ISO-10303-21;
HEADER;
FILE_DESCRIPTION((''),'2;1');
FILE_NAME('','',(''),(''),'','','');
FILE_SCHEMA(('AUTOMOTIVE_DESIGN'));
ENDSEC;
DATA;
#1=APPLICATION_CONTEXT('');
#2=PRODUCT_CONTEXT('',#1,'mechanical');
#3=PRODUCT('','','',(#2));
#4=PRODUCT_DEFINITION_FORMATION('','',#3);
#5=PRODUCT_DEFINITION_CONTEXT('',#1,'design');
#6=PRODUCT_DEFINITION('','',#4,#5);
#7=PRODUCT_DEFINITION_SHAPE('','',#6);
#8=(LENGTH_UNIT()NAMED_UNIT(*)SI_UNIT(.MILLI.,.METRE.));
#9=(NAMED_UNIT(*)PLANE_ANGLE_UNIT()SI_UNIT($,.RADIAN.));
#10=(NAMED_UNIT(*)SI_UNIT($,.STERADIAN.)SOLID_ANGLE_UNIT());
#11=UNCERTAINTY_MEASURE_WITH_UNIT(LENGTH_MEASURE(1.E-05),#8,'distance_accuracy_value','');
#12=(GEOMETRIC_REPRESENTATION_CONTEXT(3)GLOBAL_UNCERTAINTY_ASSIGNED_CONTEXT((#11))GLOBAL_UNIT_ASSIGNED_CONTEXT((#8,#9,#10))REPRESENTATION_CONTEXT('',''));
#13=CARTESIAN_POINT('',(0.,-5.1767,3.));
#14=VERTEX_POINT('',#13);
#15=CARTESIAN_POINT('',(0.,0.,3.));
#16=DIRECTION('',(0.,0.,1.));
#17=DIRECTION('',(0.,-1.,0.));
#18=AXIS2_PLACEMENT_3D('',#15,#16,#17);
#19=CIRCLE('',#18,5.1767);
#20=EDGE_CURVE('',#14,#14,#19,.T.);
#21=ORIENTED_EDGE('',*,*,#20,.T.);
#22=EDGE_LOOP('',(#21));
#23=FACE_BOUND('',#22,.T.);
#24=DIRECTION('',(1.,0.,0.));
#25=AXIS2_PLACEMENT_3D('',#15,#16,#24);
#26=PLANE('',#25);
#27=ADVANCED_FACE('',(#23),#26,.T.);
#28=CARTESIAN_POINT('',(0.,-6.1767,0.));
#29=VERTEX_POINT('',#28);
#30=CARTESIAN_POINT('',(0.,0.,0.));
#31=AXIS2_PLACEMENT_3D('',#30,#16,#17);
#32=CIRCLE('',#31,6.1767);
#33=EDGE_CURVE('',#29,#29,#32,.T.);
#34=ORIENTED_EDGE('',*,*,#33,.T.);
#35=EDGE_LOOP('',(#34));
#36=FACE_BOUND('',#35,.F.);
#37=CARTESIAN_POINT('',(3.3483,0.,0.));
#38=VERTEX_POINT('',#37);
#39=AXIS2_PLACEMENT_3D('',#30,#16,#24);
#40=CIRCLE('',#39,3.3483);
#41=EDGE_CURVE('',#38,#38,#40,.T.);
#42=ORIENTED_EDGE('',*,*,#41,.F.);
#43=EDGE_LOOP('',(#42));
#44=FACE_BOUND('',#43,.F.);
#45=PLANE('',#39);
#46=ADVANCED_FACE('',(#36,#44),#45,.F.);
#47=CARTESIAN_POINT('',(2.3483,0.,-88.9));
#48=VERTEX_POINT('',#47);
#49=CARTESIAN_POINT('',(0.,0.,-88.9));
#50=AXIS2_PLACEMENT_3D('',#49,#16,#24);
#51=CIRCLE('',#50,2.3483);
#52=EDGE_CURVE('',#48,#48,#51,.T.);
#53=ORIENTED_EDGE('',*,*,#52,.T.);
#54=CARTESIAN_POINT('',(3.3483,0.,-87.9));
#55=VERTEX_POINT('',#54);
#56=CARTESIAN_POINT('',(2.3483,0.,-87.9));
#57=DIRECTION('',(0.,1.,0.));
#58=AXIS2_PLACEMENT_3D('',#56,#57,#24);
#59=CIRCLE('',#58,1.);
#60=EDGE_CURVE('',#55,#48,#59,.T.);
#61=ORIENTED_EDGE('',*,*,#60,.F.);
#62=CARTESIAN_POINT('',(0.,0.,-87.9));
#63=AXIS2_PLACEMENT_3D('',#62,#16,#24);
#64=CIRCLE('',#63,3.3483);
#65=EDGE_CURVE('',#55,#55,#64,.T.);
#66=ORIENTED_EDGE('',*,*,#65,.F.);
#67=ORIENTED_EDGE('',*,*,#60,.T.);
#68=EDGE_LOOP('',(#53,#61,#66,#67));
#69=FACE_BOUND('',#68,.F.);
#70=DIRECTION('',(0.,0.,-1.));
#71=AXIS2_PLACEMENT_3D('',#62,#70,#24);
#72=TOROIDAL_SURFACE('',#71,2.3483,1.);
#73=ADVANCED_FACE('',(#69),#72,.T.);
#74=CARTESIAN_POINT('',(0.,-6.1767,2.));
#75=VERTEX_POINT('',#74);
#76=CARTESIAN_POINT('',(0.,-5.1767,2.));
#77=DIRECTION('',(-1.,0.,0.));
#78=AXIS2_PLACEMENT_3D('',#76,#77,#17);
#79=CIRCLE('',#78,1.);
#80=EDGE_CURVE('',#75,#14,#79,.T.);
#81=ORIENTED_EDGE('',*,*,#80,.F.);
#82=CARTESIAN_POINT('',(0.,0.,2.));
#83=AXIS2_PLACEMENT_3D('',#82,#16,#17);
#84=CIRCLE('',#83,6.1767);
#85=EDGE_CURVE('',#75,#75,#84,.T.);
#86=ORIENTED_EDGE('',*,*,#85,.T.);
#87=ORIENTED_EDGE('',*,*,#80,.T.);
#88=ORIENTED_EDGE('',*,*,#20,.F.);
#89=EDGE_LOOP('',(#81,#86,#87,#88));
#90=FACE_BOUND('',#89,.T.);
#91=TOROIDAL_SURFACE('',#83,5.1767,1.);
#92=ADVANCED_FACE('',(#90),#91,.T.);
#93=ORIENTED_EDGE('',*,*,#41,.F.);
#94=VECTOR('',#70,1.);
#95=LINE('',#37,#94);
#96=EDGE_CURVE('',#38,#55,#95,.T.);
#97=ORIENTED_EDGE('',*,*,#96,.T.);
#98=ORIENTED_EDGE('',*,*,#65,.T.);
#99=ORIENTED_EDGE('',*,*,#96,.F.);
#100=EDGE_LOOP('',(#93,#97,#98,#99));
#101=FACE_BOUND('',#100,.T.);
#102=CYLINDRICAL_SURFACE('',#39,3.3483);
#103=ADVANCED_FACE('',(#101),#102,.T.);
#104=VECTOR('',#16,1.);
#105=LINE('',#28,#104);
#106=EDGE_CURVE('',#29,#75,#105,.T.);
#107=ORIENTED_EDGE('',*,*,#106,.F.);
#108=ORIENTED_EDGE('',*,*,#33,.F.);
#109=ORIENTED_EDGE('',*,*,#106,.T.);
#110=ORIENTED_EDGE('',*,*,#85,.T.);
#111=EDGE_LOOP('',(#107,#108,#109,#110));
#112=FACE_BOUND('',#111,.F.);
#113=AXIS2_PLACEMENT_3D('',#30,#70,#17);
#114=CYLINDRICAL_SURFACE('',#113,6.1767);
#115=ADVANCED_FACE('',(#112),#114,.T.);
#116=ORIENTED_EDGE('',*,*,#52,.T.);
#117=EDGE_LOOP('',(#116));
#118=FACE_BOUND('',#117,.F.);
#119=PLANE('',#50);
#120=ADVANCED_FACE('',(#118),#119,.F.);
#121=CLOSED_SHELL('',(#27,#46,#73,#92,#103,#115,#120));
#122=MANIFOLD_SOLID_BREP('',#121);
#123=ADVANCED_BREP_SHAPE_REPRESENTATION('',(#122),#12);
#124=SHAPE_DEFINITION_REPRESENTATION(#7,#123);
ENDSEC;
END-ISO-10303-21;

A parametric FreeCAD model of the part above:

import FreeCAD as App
import Part
import Sketcher
from FreeCAD import Vector


def edges_at(feature, points):
    """Names of the edges that pass closest to the given points."""
    edges = feature.Shape.Edges
    near = lambda p: min(range(len(edges)), key=lambda i: edges[i].distToShape(Part.Vertex(*p))[0])
    return sorted({f"Edge{near(p) + 1}" for p in points})

doc = App.newDocument("Part")
body = doc.addObject("PartDesign::Body", "Body")

# Sketch on XY plane
sketch1 = body.newObject("Sketcher::SketchObject", "Sketch")
sketch1.AttachmentSupport = (doc.getObject("XY_Plane"), [""])
sketch1.MapMode = "FlatFace"
sketch1.addGeometry(Part.Circle(Vector(0, 0, 0), Vector(0, 0, 1), 3.3), False)
sketch1.addConstraint(Sketcher.Constraint("Coincident", 0, 3, -1, 1))
sketch1.addConstraint(Sketcher.Constraint("Diameter", 0, 6.6966))
pad1 = body.newObject("PartDesign::Pad", "Pad")
pad1.Profile = sketch1
pad1.Length = 88.9
pad1.Reversed = True
doc.recompute()

fillet = body.newObject("PartDesign::Fillet", "Fillet")
fillet.Base = (pad1, edges_at(pad1, [(-3.348, 0, -88.9)]))
fillet.Radius = 1

# Sketch on XY plane
sketch2 = body.newObject("Sketcher::SketchObject", "Sketch001")
sketch2.AttachmentSupport = (doc.getObject("XY_Plane"), [""])
sketch2.MapMode = "FlatFace"
sketch2.addGeometry(Part.Circle(Vector(0, 0, 0), Vector(0, 0, 1), 6), False)
sketch2.addConstraint(Sketcher.Constraint("Coincident", 0, 3, -1, 1))
sketch2.addConstraint(Sketcher.Constraint("Diameter", 0, 12.3534))
pad2 = body.newObject("PartDesign::Pad", "Pad001")
pad2.Profile = sketch2
pad2.Length = 3
doc.recompute()

fillet2 = body.newObject("PartDesign::Fillet", "Fillet001")
fillet2.Base = (pad2, edges_at(pad2, [(0, 6.177, 3)]))
fillet2.Radius = 1

doc.recompute()
